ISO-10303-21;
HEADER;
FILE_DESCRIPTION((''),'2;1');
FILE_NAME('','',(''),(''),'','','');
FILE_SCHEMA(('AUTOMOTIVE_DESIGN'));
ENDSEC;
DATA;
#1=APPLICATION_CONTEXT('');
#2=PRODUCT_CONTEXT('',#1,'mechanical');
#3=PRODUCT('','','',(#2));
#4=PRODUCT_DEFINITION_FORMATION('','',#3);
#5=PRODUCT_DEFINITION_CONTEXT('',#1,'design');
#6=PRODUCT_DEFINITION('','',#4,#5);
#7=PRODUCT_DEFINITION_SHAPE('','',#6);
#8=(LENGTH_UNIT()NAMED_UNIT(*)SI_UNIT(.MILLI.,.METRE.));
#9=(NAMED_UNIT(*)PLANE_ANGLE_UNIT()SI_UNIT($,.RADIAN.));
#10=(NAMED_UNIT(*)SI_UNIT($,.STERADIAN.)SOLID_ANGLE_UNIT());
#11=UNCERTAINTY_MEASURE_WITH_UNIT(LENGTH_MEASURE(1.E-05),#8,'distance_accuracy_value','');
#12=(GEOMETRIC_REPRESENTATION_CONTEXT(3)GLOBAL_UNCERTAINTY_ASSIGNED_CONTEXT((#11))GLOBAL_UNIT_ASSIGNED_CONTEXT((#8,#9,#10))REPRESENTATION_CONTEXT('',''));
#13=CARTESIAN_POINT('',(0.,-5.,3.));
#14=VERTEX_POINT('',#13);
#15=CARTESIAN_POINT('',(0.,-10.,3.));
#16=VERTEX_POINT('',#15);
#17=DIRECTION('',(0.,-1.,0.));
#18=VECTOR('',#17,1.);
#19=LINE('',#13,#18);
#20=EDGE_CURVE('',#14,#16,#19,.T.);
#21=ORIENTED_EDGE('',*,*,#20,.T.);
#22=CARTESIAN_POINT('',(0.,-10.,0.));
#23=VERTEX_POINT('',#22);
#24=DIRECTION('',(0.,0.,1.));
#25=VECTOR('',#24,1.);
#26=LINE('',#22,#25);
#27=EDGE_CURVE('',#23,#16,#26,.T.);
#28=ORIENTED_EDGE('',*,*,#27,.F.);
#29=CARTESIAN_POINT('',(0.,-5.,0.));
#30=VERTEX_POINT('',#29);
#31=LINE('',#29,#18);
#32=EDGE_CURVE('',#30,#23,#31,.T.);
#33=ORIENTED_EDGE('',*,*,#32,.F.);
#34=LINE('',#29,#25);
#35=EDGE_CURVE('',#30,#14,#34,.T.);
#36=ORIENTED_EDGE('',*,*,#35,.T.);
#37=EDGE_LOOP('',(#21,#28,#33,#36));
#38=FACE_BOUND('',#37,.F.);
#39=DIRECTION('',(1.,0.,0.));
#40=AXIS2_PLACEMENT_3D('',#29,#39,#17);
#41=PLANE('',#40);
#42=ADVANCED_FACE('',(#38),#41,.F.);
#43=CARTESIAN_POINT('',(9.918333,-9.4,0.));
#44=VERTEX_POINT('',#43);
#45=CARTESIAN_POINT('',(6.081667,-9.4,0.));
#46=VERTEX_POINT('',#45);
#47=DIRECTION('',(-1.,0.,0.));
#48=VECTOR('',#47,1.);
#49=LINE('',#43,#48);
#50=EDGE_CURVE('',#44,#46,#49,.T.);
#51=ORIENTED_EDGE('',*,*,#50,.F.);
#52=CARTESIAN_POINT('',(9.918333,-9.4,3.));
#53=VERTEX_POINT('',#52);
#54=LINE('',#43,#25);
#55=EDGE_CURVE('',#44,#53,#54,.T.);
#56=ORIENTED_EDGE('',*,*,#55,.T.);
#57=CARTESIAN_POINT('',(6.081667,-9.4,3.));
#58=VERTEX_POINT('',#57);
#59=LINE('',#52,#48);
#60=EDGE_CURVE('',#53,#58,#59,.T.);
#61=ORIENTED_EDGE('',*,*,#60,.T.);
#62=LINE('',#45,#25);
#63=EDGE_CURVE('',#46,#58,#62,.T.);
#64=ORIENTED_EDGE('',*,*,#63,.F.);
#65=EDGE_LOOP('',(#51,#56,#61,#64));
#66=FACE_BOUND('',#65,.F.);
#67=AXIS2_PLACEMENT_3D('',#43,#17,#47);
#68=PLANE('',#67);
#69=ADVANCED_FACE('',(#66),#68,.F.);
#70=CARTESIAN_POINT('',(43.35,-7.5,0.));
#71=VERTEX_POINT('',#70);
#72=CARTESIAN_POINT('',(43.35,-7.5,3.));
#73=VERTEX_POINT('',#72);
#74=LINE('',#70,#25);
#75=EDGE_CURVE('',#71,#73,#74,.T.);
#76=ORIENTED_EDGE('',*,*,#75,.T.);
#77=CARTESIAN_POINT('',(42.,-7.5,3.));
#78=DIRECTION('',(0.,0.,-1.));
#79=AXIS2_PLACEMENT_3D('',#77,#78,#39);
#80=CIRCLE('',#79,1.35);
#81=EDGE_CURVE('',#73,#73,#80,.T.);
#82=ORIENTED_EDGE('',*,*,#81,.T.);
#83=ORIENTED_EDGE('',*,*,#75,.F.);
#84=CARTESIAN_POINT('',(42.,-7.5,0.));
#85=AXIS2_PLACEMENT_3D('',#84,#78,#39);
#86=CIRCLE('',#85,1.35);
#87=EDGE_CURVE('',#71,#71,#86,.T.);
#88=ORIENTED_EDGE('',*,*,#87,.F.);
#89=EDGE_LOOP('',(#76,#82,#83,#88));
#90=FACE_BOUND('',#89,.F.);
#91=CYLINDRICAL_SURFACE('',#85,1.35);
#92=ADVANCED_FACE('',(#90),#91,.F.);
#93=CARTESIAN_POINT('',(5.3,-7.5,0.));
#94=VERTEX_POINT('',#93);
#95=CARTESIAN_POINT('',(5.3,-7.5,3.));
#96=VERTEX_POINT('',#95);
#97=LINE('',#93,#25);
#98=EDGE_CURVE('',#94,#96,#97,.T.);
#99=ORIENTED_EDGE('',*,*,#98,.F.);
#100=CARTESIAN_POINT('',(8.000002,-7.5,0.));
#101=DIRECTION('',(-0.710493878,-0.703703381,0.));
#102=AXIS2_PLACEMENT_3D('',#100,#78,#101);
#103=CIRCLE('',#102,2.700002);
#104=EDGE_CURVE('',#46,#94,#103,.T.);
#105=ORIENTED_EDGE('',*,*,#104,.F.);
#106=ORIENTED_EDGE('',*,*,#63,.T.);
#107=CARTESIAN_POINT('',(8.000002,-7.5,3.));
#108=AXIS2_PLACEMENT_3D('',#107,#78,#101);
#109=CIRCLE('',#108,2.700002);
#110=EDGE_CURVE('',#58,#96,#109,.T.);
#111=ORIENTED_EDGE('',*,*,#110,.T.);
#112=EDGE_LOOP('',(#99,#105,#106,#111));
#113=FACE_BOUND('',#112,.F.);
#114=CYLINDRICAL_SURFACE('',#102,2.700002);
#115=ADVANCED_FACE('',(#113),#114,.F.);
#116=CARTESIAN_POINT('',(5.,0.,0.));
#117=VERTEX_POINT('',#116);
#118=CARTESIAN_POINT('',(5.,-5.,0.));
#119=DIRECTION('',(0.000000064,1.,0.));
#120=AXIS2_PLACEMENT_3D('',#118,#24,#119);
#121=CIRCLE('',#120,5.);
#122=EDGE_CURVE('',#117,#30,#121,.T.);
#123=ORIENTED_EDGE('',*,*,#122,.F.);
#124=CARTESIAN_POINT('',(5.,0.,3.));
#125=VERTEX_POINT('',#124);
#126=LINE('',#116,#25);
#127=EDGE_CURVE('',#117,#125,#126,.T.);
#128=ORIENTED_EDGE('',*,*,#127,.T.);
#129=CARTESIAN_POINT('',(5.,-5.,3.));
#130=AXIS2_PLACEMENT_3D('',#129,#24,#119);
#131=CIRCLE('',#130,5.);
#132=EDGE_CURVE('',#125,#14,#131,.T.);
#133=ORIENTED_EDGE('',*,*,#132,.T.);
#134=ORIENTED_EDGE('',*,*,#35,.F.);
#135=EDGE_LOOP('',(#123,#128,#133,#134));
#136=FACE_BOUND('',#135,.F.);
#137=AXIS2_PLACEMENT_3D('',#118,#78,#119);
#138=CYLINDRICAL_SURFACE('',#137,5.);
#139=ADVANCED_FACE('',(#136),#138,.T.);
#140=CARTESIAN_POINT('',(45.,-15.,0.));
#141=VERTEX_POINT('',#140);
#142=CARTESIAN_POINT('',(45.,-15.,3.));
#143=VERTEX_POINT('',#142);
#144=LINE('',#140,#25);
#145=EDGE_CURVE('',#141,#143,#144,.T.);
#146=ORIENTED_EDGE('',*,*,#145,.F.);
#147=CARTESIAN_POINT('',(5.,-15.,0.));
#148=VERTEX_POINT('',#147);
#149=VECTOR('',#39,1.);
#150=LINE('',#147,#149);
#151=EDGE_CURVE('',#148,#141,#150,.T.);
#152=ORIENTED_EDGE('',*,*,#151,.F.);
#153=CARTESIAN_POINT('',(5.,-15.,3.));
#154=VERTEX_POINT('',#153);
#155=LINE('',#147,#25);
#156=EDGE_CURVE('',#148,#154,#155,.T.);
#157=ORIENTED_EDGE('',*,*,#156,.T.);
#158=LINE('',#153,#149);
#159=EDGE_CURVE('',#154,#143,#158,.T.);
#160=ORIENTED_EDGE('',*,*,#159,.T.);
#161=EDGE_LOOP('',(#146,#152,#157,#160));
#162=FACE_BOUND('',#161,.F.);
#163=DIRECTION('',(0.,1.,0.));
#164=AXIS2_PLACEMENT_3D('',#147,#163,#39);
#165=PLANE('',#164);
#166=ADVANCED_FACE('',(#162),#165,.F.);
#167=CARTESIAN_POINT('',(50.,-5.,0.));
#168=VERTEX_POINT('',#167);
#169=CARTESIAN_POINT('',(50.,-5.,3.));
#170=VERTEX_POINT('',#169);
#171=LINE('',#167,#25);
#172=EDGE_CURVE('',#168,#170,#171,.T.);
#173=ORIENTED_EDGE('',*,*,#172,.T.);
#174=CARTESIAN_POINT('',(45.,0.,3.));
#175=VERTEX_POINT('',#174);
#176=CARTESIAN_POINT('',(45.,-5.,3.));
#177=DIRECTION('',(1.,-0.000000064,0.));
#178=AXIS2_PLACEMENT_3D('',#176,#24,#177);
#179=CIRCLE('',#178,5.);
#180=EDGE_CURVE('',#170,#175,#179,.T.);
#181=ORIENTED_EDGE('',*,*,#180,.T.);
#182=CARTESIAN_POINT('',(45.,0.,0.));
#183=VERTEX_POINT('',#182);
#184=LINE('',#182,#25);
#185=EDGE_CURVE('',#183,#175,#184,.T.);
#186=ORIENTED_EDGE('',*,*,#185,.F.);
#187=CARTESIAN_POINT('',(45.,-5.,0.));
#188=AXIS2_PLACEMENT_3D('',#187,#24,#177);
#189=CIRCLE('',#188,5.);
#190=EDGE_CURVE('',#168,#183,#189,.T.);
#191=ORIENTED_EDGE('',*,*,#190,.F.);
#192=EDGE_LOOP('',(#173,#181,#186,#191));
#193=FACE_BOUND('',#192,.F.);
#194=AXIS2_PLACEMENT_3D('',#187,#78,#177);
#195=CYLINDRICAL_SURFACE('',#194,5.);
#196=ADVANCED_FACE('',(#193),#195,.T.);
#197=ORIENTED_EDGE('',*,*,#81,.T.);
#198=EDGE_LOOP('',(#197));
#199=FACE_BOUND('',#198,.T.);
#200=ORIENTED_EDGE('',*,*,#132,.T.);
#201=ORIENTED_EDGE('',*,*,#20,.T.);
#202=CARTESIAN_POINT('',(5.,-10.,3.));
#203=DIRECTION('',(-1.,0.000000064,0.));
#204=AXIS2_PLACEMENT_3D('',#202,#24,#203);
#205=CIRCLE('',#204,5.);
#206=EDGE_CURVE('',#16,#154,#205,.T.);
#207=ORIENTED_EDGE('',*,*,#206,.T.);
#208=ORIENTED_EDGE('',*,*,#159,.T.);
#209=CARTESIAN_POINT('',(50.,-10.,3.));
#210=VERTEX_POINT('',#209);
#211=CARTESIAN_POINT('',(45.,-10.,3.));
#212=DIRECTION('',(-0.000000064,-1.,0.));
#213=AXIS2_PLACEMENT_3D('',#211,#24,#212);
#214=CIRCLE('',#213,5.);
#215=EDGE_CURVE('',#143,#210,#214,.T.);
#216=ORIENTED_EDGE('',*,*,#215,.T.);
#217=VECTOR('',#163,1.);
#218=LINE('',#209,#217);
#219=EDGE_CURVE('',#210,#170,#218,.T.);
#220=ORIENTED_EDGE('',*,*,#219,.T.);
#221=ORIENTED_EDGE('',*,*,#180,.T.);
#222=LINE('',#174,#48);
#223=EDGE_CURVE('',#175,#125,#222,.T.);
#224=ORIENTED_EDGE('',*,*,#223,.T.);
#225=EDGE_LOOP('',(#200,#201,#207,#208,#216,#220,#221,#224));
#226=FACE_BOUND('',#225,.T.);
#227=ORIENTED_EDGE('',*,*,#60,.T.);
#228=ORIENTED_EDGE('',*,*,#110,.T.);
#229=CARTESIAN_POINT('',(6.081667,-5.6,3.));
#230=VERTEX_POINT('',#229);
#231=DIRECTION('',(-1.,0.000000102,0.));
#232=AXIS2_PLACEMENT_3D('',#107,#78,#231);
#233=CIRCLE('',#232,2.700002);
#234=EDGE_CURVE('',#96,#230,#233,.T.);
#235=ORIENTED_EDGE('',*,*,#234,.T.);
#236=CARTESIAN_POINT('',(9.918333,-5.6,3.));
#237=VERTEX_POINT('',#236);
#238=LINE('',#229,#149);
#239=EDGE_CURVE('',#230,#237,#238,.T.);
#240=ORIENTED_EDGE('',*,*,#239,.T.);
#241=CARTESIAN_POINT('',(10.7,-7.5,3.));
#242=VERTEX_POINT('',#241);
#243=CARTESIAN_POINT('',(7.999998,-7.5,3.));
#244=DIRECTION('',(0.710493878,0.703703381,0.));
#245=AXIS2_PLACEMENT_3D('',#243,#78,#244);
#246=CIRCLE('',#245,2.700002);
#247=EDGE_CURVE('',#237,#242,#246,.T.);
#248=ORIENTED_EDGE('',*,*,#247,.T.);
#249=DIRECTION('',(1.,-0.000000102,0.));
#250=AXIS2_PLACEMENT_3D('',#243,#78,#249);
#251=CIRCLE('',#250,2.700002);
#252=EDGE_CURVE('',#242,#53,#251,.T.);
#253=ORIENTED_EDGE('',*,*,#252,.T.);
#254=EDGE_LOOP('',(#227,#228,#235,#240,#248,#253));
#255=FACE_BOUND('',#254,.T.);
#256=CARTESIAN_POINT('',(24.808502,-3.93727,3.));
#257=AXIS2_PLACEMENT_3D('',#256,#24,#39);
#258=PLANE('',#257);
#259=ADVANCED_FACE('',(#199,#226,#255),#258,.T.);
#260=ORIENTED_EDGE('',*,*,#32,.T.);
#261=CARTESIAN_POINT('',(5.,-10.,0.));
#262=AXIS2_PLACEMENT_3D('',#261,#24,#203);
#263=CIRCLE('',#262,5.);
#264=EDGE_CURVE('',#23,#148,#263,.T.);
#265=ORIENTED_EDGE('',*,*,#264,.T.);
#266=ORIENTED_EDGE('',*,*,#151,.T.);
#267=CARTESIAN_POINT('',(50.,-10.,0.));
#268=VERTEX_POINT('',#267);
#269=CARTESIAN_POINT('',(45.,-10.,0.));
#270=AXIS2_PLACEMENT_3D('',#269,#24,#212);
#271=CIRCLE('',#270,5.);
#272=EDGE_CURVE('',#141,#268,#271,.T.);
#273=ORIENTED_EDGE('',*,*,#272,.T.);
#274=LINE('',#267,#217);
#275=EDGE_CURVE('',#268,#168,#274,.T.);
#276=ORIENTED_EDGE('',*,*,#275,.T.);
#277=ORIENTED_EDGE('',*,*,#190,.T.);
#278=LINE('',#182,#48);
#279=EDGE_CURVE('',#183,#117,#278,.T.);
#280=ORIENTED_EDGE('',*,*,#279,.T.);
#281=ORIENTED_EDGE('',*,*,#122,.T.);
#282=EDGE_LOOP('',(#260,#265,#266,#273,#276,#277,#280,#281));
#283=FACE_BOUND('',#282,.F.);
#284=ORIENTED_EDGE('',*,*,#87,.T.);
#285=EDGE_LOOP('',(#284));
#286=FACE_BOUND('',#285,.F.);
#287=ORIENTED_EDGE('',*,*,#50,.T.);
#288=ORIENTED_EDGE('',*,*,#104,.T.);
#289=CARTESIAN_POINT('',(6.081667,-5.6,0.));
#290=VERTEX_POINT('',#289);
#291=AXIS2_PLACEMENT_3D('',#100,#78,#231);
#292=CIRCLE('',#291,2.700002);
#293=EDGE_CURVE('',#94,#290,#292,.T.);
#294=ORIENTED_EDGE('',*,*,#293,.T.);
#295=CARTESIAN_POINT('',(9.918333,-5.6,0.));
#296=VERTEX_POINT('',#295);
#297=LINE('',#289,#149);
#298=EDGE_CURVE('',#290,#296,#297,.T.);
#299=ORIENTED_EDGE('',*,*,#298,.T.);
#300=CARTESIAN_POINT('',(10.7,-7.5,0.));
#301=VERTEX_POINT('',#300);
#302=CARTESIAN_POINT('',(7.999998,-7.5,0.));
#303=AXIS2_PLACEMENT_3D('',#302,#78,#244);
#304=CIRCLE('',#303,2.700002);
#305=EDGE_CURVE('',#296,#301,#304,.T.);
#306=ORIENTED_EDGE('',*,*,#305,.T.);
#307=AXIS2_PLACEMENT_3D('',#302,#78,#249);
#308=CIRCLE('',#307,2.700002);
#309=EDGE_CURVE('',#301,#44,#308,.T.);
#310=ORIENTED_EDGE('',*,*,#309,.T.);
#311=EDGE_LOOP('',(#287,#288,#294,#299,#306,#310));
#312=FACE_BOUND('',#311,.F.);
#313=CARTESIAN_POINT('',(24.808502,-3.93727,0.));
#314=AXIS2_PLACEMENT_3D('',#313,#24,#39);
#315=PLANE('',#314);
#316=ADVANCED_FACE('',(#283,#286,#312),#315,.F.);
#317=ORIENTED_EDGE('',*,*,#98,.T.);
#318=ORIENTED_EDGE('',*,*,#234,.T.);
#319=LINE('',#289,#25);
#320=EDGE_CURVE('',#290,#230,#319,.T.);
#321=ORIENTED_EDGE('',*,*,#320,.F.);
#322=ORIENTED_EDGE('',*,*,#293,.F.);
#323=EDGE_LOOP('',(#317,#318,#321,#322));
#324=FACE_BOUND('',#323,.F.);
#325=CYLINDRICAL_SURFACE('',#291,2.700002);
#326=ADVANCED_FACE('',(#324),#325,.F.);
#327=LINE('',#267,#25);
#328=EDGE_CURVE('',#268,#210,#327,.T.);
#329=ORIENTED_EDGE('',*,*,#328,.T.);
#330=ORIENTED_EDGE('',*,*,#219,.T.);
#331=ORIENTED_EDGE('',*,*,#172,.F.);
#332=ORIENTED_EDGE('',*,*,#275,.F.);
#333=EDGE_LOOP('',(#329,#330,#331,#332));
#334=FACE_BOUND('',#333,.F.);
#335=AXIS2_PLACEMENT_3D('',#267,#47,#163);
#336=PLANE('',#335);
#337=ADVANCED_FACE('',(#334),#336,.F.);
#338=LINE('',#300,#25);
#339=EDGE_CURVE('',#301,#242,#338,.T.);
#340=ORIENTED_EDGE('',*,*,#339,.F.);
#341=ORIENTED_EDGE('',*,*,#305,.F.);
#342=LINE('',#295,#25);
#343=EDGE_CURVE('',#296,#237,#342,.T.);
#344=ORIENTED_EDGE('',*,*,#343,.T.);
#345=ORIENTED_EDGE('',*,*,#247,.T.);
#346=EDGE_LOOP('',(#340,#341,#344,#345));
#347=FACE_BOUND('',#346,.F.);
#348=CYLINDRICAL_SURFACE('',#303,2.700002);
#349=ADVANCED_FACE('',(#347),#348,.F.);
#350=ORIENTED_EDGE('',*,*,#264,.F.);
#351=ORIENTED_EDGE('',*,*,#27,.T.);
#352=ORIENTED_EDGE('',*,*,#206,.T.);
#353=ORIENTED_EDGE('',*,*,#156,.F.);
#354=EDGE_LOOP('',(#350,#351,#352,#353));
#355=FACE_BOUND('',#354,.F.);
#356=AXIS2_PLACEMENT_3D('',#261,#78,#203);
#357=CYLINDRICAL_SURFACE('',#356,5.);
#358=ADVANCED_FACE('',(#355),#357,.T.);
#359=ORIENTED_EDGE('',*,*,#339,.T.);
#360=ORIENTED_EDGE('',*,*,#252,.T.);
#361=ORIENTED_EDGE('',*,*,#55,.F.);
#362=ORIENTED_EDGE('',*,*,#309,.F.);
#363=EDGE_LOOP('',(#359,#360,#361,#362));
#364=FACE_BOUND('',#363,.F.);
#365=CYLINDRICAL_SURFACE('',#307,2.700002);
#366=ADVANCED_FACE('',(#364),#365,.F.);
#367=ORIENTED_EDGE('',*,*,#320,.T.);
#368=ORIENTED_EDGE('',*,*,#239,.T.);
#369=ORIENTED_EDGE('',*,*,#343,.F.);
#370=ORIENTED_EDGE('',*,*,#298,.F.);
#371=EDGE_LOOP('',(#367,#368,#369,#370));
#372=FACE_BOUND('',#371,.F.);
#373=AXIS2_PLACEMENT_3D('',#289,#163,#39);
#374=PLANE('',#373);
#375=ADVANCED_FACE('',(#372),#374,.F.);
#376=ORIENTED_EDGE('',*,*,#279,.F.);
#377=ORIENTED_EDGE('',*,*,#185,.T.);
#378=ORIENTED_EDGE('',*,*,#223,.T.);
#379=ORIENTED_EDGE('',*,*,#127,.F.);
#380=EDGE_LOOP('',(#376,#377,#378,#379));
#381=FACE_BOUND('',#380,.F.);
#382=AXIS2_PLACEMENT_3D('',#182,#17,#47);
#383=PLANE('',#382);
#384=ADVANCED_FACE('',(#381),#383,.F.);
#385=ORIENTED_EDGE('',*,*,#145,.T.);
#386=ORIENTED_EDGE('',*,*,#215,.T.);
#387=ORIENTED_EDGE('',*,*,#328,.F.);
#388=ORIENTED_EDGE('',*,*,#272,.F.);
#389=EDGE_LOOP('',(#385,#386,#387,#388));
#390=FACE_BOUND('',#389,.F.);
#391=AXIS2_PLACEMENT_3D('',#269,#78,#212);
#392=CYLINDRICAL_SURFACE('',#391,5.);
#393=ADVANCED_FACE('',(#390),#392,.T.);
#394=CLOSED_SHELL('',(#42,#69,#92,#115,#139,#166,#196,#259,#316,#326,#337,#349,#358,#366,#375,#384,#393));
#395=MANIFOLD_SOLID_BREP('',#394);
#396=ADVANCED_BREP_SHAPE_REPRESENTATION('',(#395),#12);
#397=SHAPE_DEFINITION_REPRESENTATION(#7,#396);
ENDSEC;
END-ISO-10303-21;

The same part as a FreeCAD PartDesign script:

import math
import FreeCAD as App
import Part
import Sketcher

V = App.Vector
Q = App.Units.Quantity

doc = App.newDocument("Part")
body = doc.addObject("PartDesign::Body", "Body")

sketch1 = doc.addObject("Sketcher::SketchObject", "Sketch")
body.addObject(sketch1)
sketch1.AttachmentSupport = (doc.XY_Plane, [""])
sketch1.MapMode = "FlatFace"
sketch1.addGeometry([
    Part.LineSegment(V(45, 0, 0), V(5, 0, 0)),
    Part.ArcOfCircle(Part.Circle(V(5, -5, 0), V(0, 0, 1), 5), math.radians(90), math.radians(180)),
    Part.LineSegment(V(0, -5, 0), V(0, -10, 0)),
    Part.ArcOfCircle(Part.Circle(V(5, -10, 0), V(0, 0, 1), 5), math.radians(180), math.radians(270)),
    Part.LineSegment(V(5, -15, 0), V(45, -15, 0)),
    Part.ArcOfCircle(Part.Circle(V(45, -10, 0), V(0, 0, 1), 5), math.radians(-90), math.radians(0)),
    Part.LineSegment(V(50, -10, 0), V(50, -5, 0)),
    Part.ArcOfCircle(Part.Circle(V(45, -5, 0), V(0, 0, 1), 5), math.radians(0), math.radians(90)),
    Part.ArcOfCircle(Part.Circle(V(8, -7.5, 0), V(0, 0, 1), 2.7), math.radians(135), math.radians(180)),
    Part.LineSegment(V(6.1, -5.6, 0), V(9.9, -5.6, 0)),
    Part.ArcOfCircle(Part.Circle(V(8, -7.5, 0), V(0, 0, 1), 2.7), math.radians(0), math.radians(45)),
    Part.ArcOfCircle(Part.Circle(V(8, -7.5, 0), V(0, 0, 1), 2.7), math.radians(-45), math.radians(0)),
    Part.LineSegment(V(9.9, -9.4, 0), V(6.1, -9.4, 0)),
    Part.ArcOfCircle(Part.Circle(V(8, -7.5, 0), V(0, 0, 1), 2.7), math.radians(-180), math.radians(-135)),
    Part.Circle(V(42, -7.5, 0), V(0, 0, 1), 1.4),
], False)
sketch1.addConstraint([
    Sketcher.Constraint("Tangent", 0, 2, 1, 1),
    Sketcher.Constraint("Tangent", 1, 2, 2, 1),
    Sketcher.Constraint("Tangent", 2, 2, 3, 1),
    Sketcher.Constraint("Tangent", 3, 2, 4, 1),
    Sketcher.Constraint("Tangent", 4, 2, 5, 1),
    Sketcher.Constraint("Tangent", 5, 2, 6, 1),
    Sketcher.Constraint("Tangent", 6, 2, 7, 1),
    Sketcher.Constraint("Tangent", 7, 2, 0, 1),
    Sketcher.Constraint("Coincident", 8, 1, 9, 1),
    Sketcher.Constraint("Coincident", 9, 2, 10, 2),
    Sketcher.Constraint("Tangent", 10, 1, 11, 2),
    Sketcher.Constraint("Coincident", 11, 1, 12, 1),
    Sketcher.Constraint("Coincident", 12, 2, 13, 2),
    Sketcher.Constraint("Tangent", 13, 1, 8, 2),
    Sketcher.Constraint("Horizontal", 0),
    Sketcher.Constraint("Vertical", 2),
    Sketcher.Constraint("Horizontal", 4),
    Sketcher.Constraint("Vertical", 6),
    Sketcher.Constraint("Horizontal", 9),
    Sketcher.Constraint("Horizontal", 12),
    Sketcher.Constraint("Coincident", 10, 3, 8, 3),
    Sketcher.Constraint("Equal", 1, 3),
    Sketcher.Constraint("Equal", 3, 5),
    Sketcher.Constraint("Equal", 5, 7),
    Sketcher.Constraint("Equal", 8, 10),
    Sketcher.Constraint("Equal", 10, 11),
    Sketcher.Constraint("Equal", 11, 13),
    Sketcher.Constraint("PointOnObject", 0, 2, -1),
    Sketcher.Constraint("PointOnObject", 1, 2, -2),
    Sketcher.Constraint("Horizontal", 13, 3, 14, 3),
    Sketcher.Constraint("Horizontal", 14, 3, 10, 1),
    Sketcher.Constraint("Horizontal", 10, 1, 13, 1),
    Sketcher.Constraint("Vertical", 9, 2, 11, 1),
    Sketcher.Constraint("Radius", 1, Q("5 mm")),
    Sketcher.Constraint("Diameter", 14, Q("2.7 mm")),
    Sketcher.Constraint("Radius", 8, Q("2.700002 mm")),
    Sketcher.Constraint("DistanceX", 0, 2, 0, 1, Q("40 mm")),
    Sketcher.Constraint("DistanceY", 2, 2, 2, 1, Q("5 mm")),
    Sketcher.Constraint("DistanceX", -1, 1, 8, 3, Q("8.000002 mm")),
    Sketcher.Constraint("DistanceX", -1, 1, 14, 3, Q("42 mm")),
    Sketcher.Constraint("DistanceY", 8, 3, -1, 1, Q("7.5 mm")),
    Sketcher.Constraint("DistanceY", 8, 1, -1, 1, Q("5.6 mm")),
])
pad1 = doc.addObject("PartDesign::Pad", "Pad")
body.addObject(pad1)
pad1.Profile = sketch1
pad1.Length = 3

doc.recompute()
